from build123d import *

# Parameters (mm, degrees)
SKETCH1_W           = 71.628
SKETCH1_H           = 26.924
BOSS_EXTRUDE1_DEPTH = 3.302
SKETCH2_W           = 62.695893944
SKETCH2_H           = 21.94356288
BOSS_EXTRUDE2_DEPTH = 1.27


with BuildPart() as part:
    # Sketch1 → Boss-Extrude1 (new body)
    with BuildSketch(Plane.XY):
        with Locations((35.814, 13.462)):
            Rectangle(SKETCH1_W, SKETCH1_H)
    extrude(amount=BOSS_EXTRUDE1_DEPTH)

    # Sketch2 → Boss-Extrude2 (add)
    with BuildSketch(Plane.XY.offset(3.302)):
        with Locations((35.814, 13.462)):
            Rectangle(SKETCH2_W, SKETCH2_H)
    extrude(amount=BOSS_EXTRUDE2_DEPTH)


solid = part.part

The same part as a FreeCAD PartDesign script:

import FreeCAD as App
import Part
import Sketcher
Q = App.Units.Quantity

doc = App.newDocument("Part")
body = doc.addObject("PartDesign::Body", "Body")

# Sketch on XY plane
sketch1 = body.newObject("Sketcher::SketchObject", "Sketch")
sketch1.AttachmentSupport = (doc.getObject("XY_Plane"), [""])
sketch1.MapMode = "FlatFace"
sketch1.addGeometry(Part.LineSegment(App.Vector(0, 26.924, 0), App.Vector(0, 0, 0)), False)
sketch1.addGeometry(Part.LineSegment(App.Vector(0, 0, 0), App.Vector(71.628, 0, 0)), False)
sketch1.addGeometry(Part.LineSegment(App.Vector(71.628, 0, 0), App.Vector(71.628, 26.924, 0)), False)
sketch1.addGeometry(Part.LineSegment(App.Vector(71.628, 26.924, 0), App.Vector(0, 26.924, 0)), False)
sketch1.addConstraint(Sketcher.Constraint("Coincident", 0, 2, 1, 1))
sketch1.addConstraint(Sketcher.Constraint("Coincident", 1, 2, 2, 1))
sketch1.addConstraint(Sketcher.Constraint("Coincident", 2, 2, 3, 1))
sketch1.addConstraint(Sketcher.Constraint("Coincident", 3, 2, 0, 1))
sketch1.addConstraint(Sketcher.Constraint("Vertical", 0))
sketch1.addConstraint(Sketcher.Constraint("Horizontal", 1))
sketch1.addConstraint(Sketcher.Constraint("Vertical", 2))
sketch1.addConstraint(Sketcher.Constraint("Horizontal", 3))
sketch1.addConstraint(Sketcher.Constraint("Coincident", 0, 2, -1, 1))
sketch1.addConstraint(Sketcher.Constraint("DistanceX", 1, 1, 1, 2, Q("2.82 in")))
sketch1.addConstraint(Sketcher.Constraint("DistanceY", 0, 2, 0, 1, Q("1.06 in")))
pad1 = body.newObject("PartDesign::Pad", "Pad")
pad1.Profile = sketch1
pad1.Length = Q("0.13 in")

# Sketch on XY plane
sketch2 = body.newObject("Sketcher::SketchObject", "Sketch001")
sketch2.AttachmentSupport = (doc.getObject("XY_Plane"), [""])
sketch2.MapMode = "FlatFace"
sketch2.AttachmentOffset = App.Placement(App.Vector(0, 0, 0.13 * 25.4), App.Rotation())
sketch2.addGeometry(Part.LineSegment(App.Vector(4.466053, 24.433781, 0), App.Vector(4.466053, 2.490219, 0)), False)
sketch2.addGeometry(Part.LineSegment(App.Vector(4.466053, 2.490219, 0), App.Vector(67.161947, 2.490219, 0)), False)
sketch2.addGeometry(Part.LineSegment(App.Vector(67.161947, 2.490219, 0), App.Vector(67.161947, 24.433781, 0)), False)
sketch2.addGeometry(Part.LineSegment(App.Vector(67.161947, 24.433781, 0), App.Vector(4.466053, 24.433781, 0)), False)
sketch2.addConstraint(Sketcher.Constraint("Coincident", 0, 2, 1, 1))
sketch2.addConstraint(Sketcher.Constraint("Coincident", 1, 2, 2, 1))
sketch2.addConstraint(Sketcher.Constraint("Coincident", 2, 2, 3, 1))
sketch2.addConstraint(Sketcher.Constraint("Coincident", 3, 2, 0, 1))
sketch2.addConstraint(Sketcher.Constraint("Vertical", 0))
sketch2.addConstraint(Sketcher.Constraint("Horizontal", 1))
sketch2.addConstraint(Sketcher.Constraint("Vertical", 2))
sketch2.addConstraint(Sketcher.Constraint("Horizontal", 3))
sketch2.addConstraint(Sketcher.Constraint("DistanceX", 1, 1, 1, 2, 62.695894))
sketch2.addConstraint(Sketcher.Constraint("DistanceY", 0, 2, 0, 1, 21.943563))
sketch2.addConstraint(Sketcher.Constraint("DistanceY", -1, 1, 0, 2, 2.490219))
sketch2.addConstraint(Sketcher.Constraint("DistanceX", -1, 1, 0, 2, 4.466053))
pad2 = body.newObject("PartDesign::Pad", "Pad001")
pad2.Profile = sketch2
pad2.Length = Q("0.05 in")

doc.recompute()
